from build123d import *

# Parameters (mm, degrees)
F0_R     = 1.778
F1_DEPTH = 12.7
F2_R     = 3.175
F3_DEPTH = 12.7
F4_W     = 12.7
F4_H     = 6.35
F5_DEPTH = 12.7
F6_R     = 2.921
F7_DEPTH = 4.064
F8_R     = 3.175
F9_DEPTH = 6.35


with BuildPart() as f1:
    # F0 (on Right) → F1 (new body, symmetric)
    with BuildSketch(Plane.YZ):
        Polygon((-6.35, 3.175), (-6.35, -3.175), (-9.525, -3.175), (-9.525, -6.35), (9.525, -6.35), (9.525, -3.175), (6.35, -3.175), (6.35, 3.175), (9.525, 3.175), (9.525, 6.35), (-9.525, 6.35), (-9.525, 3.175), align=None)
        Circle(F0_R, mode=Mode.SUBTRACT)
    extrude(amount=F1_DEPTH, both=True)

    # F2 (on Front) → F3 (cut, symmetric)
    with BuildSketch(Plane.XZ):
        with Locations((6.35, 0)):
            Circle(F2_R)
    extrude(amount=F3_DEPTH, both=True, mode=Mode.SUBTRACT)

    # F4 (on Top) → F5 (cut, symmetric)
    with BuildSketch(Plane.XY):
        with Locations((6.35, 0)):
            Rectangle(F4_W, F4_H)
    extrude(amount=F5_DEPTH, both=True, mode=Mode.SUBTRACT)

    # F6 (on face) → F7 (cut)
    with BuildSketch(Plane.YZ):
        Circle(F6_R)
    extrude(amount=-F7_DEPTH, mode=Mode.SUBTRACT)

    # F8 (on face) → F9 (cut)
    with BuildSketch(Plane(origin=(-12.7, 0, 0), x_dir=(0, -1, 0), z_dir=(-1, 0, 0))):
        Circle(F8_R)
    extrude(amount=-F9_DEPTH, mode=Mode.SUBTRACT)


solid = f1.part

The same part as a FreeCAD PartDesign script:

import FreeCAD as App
import Part
import Sketcher
from FreeCAD import Vector
Q = App.Units.Quantity


def add_polygon(sketch, points):
    """Adds a closed chain of lines whose ends are joined by coincident constraints."""
    first, n = sketch.GeometryCount, len(points)
    for a, b in zip(points, points[1:] + points[:1]):
        sketch.addGeometry(Part.LineSegment(App.Vector(*a, 0), App.Vector(*b, 0)), False)
    for i in range(n):
        sketch.addConstraint(Sketcher.Constraint("Coincident", first + i, 2, first + (i + 1) % n, 1))

doc = App.newDocument("Part")
body = doc.addObject("PartDesign::Body", "Body")

sketch1 = body.newObject("Sketcher::SketchObject", "Sketch")
sketch1.AttachmentSupport = (doc.getObject("YZ_Plane"), [""])
sketch1.MapMode = "FlatFace"
add_polygon(sketch1, [(-6.3, 3.2), (-6.3, -3.2), (-9.5, -3.2), (-9.5, -6.3), (9.5, -6.3), (9.5, -3.2), (6.3, -3.2), (6.3, 3.2), (9.5, 3.2), (9.5, 6.3), (-9.5, 6.3), (-9.5, 3.2)])
sketch1.addGeometry(Part.Circle(Vector(0, 0, 0), Vector(0, 0, 1), 1.8), False)
sketch1.addConstraint([
    Sketcher.Constraint("Vertical", 0),
    Sketcher.Constraint("Horizontal", 1),
    Sketcher.Constraint("Vertical", 2),
    Sketcher.Constraint("Horizontal", 3),
    Sketcher.Constraint("Vertical", 4),
    Sketcher.Constraint("Horizontal", 5),
    Sketcher.Constraint("Vertical", 6),
    Sketcher.Constraint("Horizontal", 7),
    Sketcher.Constraint("Vertical", 8),
    Sketcher.Constraint("Horizontal", 9),
    Sketcher.Constraint("Vertical", 10),
    Sketcher.Constraint("Horizontal", 11),
    Sketcher.Constraint("Coincident", 12, 3, -1, 1),
    Sketcher.Constraint("Symmetric", 0, 2, 6, 2, -1, 1),
    Sketcher.Constraint("Symmetric", 2, 2, 8, 2, -1, 1),
    Sketcher.Constraint("Symmetric", 4, 2, 10, 2, -1, 1),
    Sketcher.Constraint("Symmetric", 1, 2, 4, 2, -2),
    Sketcher.Constraint("Equal", 11, 2),
    Sketcher.Constraint("Diameter", 12, Q("0.14 in")),
    Sketcher.Constraint("DistanceX", 3, 1, 3, 2, Q("0.75 in")),
    Sketcher.Constraint("DistanceY", 0, 2, 0, 1, Q("0.25 in")),
    Sketcher.Constraint("DistanceX", 0, 2, 5, 2, Q("0.5 in")),
])
pad1 = body.newObject("PartDesign::Pad", "Pad")
pad1.Profile = sketch1
pad1.Length = Q("1 in")
pad1.Midplane = True

sketch2 = body.newObject("Sketcher::SketchObject", "Sketch001")
sketch2.AttachmentSupport = (doc.getObject("XZ_Plane"), [""])
sketch2.MapMode = "FlatFace"
sketch2.addGeometry(Part.Circle(Vector(6.3, 0, 0), Vector(0, 0, 1), 3.2), False)
sketch2.addConstraint([
    Sketcher.Constraint("PointOnObject", 0, 3, -1),
    Sketcher.Constraint("Diameter", 0, Q("0.25 in")),
    Sketcher.Constraint("DistanceX", -1, 1, 0, 3, Q("0.25 in")),
])
pocket1 = body.newObject("PartDesign::Pocket", "Pocket")
pocket1.Profile = sketch2
pocket1.Length = Q("1 in")
pocket1.Midplane = True

sketch3 = body.newObject("Sketcher::SketchObject", "Sketch002")
sketch3.AttachmentSupport = (doc.getObject("XY_Plane"), [""])
sketch3.MapMode = "FlatFace"
add_polygon(sketch3, [(0, 3), (0, -3), (13, -3), (13, 3)])
sketch3.addConstraint([
    Sketcher.Constraint("Vertical", 0),
    Sketcher.Constraint("Horizontal", 1),
    Sketcher.Constraint("Vertical", 2),
    Sketcher.Constraint("Horizontal", 3),
    Sketcher.Constraint("Symmetric", 0, 2, 3, 2, -1, 1),
    Sketcher.Constraint("DistanceX", 1, 1, 1, 2, Q("0.5 in")),
    Sketcher.Constraint("DistanceY", 0, 2, 0, 1, Q("0.25 in")),
])
pocket2 = body.newObject("PartDesign::Pocket", "Pocket001")
pocket2.Profile = sketch3
pocket2.Length = Q("1 in")
pocket2.Midplane = True

sketch4 = body.newObject("Sketcher::SketchObject", "Sketch003")
sketch4.AttachmentSupport = (doc.getObject("YZ_Plane"), [""])
sketch4.MapMode = "FlatFace"
sketch4.addGeometry(Part.Circle(Vector(0, 0, 0), Vector(0, 0, 1), 2.9), False)
sketch4.addConstraint([
    Sketcher.Constraint("Coincident", 0, 3, -1, 1),
    Sketcher.Constraint("Diameter", 0, Q("0.23 in")),
])
pocket3 = body.newObject("PartDesign::Pocket", "Pocket002")
pocket3.Profile = sketch4
pocket3.Length = Q("0.16 in")

sketch5 = body.newObject("Sketcher::SketchObject", "Sketch004")
sketch5.AttachmentSupport = (doc.getObject("YZ_Plane"), [""])
sketch5.MapMode = "FlatFace"
sketch5.AttachmentOffset = App.Placement(Vector(0, 0, -0.5 * 25.4), App.Rotation())
sketch5.addGeometry(Part.Circle(Vector(0, 0, 0), Vector(0, 0, 1), 3.2), False)
sketch5.addConstraint([
    Sketcher.Constraint("Coincident", 0, 3, -1, 1),
    Sketcher.Constraint("Diameter", 0, Q("0.25 in")),
])
pocket4 = body.newObject("PartDesign::Pocket", "Pocket003")
pocket4.Profile = sketch5
pocket4.Length = Q("0.25 in")
pocket4.Reversed = True

doc.recompute()
